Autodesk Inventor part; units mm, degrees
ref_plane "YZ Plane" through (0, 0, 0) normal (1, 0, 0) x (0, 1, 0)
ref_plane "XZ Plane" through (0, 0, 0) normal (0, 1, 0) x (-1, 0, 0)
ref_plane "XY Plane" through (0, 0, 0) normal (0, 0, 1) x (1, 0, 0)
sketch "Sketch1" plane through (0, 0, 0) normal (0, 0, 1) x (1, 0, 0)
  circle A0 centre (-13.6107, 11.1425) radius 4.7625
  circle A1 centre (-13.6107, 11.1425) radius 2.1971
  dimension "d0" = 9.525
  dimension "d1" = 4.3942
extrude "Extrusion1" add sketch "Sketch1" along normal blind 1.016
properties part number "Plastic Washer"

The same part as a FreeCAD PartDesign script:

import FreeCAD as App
import Part
import Sketcher

V = App.Vector
Q = App.Units.Quantity

doc = App.newDocument("Part")
body = doc.addObject("PartDesign::Body", "Body")

sketch1 = body.newObject("Sketcher::SketchObject", "Sketch")
sketch1.AttachmentSupport = (doc.getObject("XY_Plane"), [""])
sketch1.MapMode = "FlatFace"
sketch1.addGeometry([
    Part.Circle(V(-13.6107, 11.1425, 0), V(0, 0, 1), 4.7625),
    Part.Circle(V(-13.6107, 11.1425, 0), V(0, 0, 1), 2.1971),
], False)
sketch1.addConstraint([
    Sketcher.Constraint("Coincident", 1, 3, 0, 3),
    Sketcher.Constraint("Diameter", 0, Q("0.375 in")),
    Sketcher.Constraint("Diameter", 1, Q("0.173 in")),
    Sketcher.Constraint("DistanceX", 0, 3, -1, 1, 13.6107),
    Sketcher.Constraint("DistanceY", -1, 1, 0, 3, 11.1425),
])
pad1 = body.newObject("PartDesign::Pad", "Pad")
pad1.Profile = sketch1
pad1.Length = Q("0.04 in")

doc.recompute()
